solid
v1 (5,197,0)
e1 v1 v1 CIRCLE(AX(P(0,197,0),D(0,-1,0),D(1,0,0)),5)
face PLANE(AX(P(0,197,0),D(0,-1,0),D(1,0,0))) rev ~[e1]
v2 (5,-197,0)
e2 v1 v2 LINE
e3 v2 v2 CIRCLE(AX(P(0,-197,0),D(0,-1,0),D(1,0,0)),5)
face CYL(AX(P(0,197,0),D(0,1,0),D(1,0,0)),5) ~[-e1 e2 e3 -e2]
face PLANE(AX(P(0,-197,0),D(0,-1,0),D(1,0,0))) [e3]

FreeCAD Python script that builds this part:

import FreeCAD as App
import Part
import Sketcher
Q = App.Units.Quantity

doc = App.newDocument("Part")
body = doc.addObject("PartDesign::Body", "Body")

# Sketch on XY plane
sketch1 = body.newObject("Sketcher::SketchObject", "Sketch")
sketch1.AttachmentSupport = (doc.getObject("XY_Plane"), [""])
sketch1.MapMode = "FlatFace"
sketch1.addGeometry(Part.Circle(App.Vector(0, 0, 0), App.Vector(0, 0, 1), 5), False)
sketch1.addConstraint([
    Sketcher.Constraint("Coincident", 0, 3, -1, 1),
    Sketcher.Constraint("Diameter", 0, Q("10 mm")),
])
pad1 = body.newObject("PartDesign::Pad", "Pad")
pad1.Profile = sketch1
pad1.Length = 394
body2 = doc.addObject("PartDesign::Body", "Body001")
doc.recompute()

body.Placement = App.Placement(App.Vector(0, 0, 0), App.Rotation(App.Vector(1, 0, 0), 90))
boolean = body2.newObject("PartDesign::Boolean", "Boolean")
boolean.Type = "Fuse"
boolean.addObjects([body])
body3 = doc.addObject("PartDesign::Body", "Body002")
doc.recompute()

body2.Placement = App.Placement(App.Vector(0, 197, 0), App.Rotation(App.Vector(0, 0, 1), 0))
boolean2 = body3.newObject("PartDesign::Boolean", "Boolean001")
boolean2.Type = "Fuse"
boolean2.addObjects([body2])

doc.recompute()
